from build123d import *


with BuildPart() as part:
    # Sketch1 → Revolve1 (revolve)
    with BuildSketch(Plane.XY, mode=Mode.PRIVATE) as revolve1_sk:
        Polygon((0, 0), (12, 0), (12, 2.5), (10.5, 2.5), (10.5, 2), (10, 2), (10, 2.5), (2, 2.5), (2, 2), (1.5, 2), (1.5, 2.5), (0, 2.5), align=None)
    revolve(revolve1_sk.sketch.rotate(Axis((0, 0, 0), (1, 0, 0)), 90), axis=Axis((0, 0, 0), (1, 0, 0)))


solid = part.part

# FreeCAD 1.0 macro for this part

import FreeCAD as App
import Part
import Sketcher

V = App.Vector
Q = App.Units.Quantity


def add_polygon(sketch, points):
    """Adds a closed chain of lines whose ends are joined by coincident constraints."""
    first, n = sketch.GeometryCount, len(points)
    for a, b in zip(points, points[1:] + points[:1]):
        sketch.addGeometry(Part.LineSegment(App.Vector(*a, 0), App.Vector(*b, 0)), False)
    for i in range(n):
        sketch.addConstraint(Sketcher.Constraint("Coincident", first + i, 2, first + (i + 1) % n, 1))

doc = App.newDocument("Part")
body = doc.addObject("PartDesign::Body", "Body")

sketch1 = doc.addObject("Sketcher::SketchObject", "Sketch")
body.addObject(sketch1)
sketch1.AttachmentSupport = (doc.XY_Plane, [""])
sketch1.MapMode = "FlatFace"
add_polygon(sketch1, [(0, 0), (12, 0), (12, 2.5), (10.5, 2.5), (10.5, 2), (10, 2), (10, 2.5), (2, 2.5), (2, 2), (1.5, 2), (1.5, 2.5), (0, 2.5)])
sketch1.addConstraint([
    Sketcher.Constraint("Horizontal", 0),
    Sketcher.Constraint("Vertical", 1),
    Sketcher.Constraint("Horizontal", 2),
    Sketcher.Constraint("Vertical", 3),
    Sketcher.Constraint("Horizontal", 4),
    Sketcher.Constraint("Vertical", 5),
    Sketcher.Constraint("Horizontal", 6),
    Sketcher.Constraint("Vertical", 7),
    Sketcher.Constraint("Horizontal", 8),
    Sketcher.Constraint("Vertical", 9),
    Sketcher.Constraint("Horizontal", 10),
    Sketcher.Constraint("Vertical", 11),
    Sketcher.Constraint("Coincident", 11, 2, -1, 1),
    Sketcher.Constraint("Horizontal", 2, 2, 5, 2),
    Sketcher.Constraint("Horizontal", 4, 2, 7, 2),
    Sketcher.Constraint("Horizontal", 6, 2, 9, 2),
    Sketcher.Constraint("Equal", 4, 8),
    Sketcher.Constraint("Equal", 2, 10),
    Sketcher.Constraint("Equal", 8, 3),
    Sketcher.Constraint("DistanceX", 0, 1, 0, 2, Q("12 mm")),
    Sketcher.Constraint("DistanceX", 6, 2, 6, 1, Q("8 mm")),
    Sketcher.Constraint("DistanceX", 2, 2, 2, 1, Q("1.5 mm")),
    Sketcher.Constraint("DistanceY", 1, 1, 1, 2, Q("2.5 mm")),
])
revolution = doc.addObject("PartDesign::Revolution", "Revolution")
body.addObject(revolution)
revolution.Profile = sketch1
revolution.ReferenceAxis = (sketch1, ["H_Axis"])
revolution.Angle = 360

doc.recompute()
